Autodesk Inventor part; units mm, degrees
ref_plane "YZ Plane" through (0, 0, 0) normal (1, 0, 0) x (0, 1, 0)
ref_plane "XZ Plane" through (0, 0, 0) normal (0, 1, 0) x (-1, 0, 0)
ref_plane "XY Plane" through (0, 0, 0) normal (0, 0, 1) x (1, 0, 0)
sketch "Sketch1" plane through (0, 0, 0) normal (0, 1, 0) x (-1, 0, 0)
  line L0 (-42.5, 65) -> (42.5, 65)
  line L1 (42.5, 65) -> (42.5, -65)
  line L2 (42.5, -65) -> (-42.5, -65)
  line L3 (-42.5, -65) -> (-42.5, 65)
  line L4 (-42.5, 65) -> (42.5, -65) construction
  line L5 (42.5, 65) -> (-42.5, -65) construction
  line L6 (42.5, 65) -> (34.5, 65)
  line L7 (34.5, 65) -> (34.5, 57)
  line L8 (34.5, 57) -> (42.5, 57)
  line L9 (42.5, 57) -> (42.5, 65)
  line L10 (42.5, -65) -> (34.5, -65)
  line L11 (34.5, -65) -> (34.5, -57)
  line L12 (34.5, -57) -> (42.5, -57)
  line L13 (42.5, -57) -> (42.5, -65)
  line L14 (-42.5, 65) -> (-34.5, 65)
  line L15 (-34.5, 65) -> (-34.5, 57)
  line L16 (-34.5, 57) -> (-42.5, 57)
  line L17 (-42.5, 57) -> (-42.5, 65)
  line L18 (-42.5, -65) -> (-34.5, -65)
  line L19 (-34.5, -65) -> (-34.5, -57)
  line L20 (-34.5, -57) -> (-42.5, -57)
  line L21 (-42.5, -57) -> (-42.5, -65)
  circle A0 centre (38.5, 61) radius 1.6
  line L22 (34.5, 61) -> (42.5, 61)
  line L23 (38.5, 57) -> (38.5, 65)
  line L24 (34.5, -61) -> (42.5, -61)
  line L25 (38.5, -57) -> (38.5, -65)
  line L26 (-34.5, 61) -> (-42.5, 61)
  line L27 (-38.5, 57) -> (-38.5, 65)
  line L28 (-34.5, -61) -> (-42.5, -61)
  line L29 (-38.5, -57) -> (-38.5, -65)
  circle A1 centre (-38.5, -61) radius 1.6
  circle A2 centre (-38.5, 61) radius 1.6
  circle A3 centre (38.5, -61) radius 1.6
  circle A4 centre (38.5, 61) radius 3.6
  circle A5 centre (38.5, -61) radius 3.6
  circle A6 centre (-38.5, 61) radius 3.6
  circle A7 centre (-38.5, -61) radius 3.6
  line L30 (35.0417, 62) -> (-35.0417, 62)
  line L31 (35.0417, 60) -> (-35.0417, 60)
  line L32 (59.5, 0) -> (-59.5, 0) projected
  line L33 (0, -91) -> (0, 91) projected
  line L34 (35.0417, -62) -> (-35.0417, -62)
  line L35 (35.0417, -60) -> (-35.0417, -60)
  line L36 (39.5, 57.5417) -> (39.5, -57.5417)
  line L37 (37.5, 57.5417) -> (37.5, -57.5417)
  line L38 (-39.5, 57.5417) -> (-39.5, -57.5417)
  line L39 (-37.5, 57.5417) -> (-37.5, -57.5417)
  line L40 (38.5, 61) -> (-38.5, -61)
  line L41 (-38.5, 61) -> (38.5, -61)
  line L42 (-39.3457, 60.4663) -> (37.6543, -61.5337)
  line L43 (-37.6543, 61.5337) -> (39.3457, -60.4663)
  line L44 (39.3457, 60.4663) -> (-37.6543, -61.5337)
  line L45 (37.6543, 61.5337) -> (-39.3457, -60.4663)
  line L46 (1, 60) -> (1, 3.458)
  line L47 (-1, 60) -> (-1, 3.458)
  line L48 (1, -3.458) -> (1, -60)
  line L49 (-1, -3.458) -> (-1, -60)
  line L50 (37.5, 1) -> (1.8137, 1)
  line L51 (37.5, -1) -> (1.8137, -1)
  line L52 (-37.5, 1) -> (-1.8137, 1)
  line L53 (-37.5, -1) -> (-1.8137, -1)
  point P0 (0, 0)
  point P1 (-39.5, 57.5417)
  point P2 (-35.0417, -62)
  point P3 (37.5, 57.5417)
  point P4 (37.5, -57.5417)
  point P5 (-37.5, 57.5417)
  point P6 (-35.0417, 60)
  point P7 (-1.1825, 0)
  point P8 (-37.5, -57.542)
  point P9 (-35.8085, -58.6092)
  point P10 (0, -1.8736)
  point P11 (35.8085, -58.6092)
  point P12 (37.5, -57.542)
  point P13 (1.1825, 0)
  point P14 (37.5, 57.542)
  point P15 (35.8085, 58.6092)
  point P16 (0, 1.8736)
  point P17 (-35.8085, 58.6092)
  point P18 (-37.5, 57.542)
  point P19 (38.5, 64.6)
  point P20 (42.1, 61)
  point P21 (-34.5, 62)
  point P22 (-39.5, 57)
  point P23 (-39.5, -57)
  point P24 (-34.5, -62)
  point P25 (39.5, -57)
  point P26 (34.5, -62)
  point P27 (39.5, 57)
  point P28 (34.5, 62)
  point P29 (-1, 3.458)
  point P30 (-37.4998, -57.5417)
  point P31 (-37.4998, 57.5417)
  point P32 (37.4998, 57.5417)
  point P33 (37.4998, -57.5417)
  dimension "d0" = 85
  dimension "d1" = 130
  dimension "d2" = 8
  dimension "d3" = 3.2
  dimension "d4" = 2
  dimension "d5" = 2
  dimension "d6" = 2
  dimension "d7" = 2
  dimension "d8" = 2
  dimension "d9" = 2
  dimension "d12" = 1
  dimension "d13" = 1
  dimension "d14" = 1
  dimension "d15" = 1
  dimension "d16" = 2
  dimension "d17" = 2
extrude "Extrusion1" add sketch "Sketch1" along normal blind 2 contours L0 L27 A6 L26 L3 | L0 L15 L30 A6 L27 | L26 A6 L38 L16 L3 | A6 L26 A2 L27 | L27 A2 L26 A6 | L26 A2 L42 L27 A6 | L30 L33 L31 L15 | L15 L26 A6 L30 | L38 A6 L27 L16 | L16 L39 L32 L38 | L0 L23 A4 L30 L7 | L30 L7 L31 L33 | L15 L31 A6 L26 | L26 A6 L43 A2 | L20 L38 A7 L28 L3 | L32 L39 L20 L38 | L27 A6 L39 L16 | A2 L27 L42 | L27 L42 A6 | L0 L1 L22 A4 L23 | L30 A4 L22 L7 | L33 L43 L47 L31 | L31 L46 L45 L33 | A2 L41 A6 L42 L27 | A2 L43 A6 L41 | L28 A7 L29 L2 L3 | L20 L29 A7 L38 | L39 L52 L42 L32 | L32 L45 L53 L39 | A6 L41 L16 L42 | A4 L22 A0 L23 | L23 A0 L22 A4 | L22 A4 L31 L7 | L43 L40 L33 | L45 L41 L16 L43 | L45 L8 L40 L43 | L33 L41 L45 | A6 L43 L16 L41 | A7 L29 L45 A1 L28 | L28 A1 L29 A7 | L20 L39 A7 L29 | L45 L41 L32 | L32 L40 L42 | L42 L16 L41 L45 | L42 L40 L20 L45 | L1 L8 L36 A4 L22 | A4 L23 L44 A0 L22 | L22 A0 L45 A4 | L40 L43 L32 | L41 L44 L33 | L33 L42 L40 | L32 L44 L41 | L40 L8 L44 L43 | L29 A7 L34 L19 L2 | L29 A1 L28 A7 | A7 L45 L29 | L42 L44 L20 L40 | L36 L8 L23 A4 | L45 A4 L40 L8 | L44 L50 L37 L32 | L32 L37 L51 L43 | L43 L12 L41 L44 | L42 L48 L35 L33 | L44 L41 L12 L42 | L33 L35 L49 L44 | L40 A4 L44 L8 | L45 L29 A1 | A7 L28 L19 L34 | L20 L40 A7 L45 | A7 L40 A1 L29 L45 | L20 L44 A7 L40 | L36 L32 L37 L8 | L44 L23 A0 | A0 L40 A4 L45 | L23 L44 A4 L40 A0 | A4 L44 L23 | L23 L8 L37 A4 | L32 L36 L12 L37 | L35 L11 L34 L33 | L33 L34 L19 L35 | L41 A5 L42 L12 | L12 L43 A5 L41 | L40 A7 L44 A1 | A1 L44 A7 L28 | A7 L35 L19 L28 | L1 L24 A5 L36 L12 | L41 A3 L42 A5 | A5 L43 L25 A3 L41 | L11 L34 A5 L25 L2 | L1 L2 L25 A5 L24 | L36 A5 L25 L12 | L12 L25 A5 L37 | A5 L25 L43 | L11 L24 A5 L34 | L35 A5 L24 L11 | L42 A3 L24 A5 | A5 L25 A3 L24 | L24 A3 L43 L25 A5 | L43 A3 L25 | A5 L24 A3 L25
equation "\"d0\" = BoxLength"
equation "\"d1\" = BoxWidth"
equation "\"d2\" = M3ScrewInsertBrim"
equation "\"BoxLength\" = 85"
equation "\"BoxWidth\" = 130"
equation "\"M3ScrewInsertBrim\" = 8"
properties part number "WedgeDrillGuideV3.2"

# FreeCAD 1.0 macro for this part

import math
import FreeCAD as App
import Part
import Sketcher

V = App.Vector

doc = App.newDocument("Part")
body = doc.addObject("PartDesign::Body", "Body")

# Sketch on XZ plane
sketch1 = body.newObject("Sketcher::SketchObject", "Sketch")
sketch1.AttachmentSupport = (doc.getObject("XZ_Plane"), [""])
sketch1.MapMode = "FlatFace"
sketch1.addGeometry(Part.LineSegment(V(42.5, 65, 0), V(42.5, 57, 0)), False)
sketch1.addGeometry(Part.LineSegment(V(42.5, 57, 0), V(39.5, 57, 0)), False)
sketch1.addGeometry(Part.LineSegment(V(39.5, 57, 0), V(39.5, -57, 0)), False)
sketch1.addGeometry(Part.LineSegment(V(39.5, -57, 0), V(42.5, -57, 0)), False)
sketch1.addGeometry(Part.LineSegment(V(42.5, -57, 0), V(42.5, -65, 0)), False)
sketch1.addGeometry(Part.LineSegment(V(42.5, -65, 0), V(34.5, -65, 0)), False)
sketch1.addGeometry(Part.LineSegment(V(34.5, -65, 0), V(34.5, -62, 0)), False)
sketch1.addGeometry(Part.LineSegment(V(34.5, -62, 0), V(-34.5, -62, 0)), False)
sketch1.addGeometry(Part.LineSegment(V(-34.5, -62, 0), V(-34.5, -65, 0)), False)
sketch1.addGeometry(Part.LineSegment(V(-34.5, -65, 0), V(-42.5, -65, 0)), False)
sketch1.addGeometry(Part.LineSegment(V(-42.5, -65, 0), V(-42.5, -57, 0)), False)
sketch1.addGeometry(Part.LineSegment(V(-42.5, -57, 0), V(-39.5, -57, 0)), False)
sketch1.addGeometry(Part.LineSegment(V(-39.5, -57, 0), V(-39.5, 57, 0)), False)
sketch1.addGeometry(Part.LineSegment(V(-39.5, 57, 0), V(-42.5, 57, 0)), False)
sketch1.addGeometry(Part.LineSegment(V(-42.5, 57, 0), V(-42.5, 65, 0)), False)
sketch1.addGeometry(Part.LineSegment(V(-42.5, 65, 0), V(-34.5, 65, 0)), False)
sketch1.addGeometry(Part.LineSegment(V(-34.5, 65, 0), V(-34.5, 62, 0)), False)
sketch1.addGeometry(Part.LineSegment(V(-34.5, 62, 0), V(34.5, 62, 0)), False)
sketch1.addGeometry(Part.LineSegment(V(34.5, 62, 0), V(34.5, 65, 0)), False)
sketch1.addGeometry(Part.LineSegment(V(34.5, 65, 0), V(42.5, 65, 0)), False)
sketch1.addGeometry(Part.Circle(V(38.5, 61, 0), V(0, 0, 1), 1.6), False)
sketch1.addGeometry(Part.LineSegment(V(1, 60, 0), V(1, 3.5, 0)), False)
sketch1.addGeometry(Part.LineSegment(V(1, 3.5, 0), V(35.8, 58.6, 0)), False)
sketch1.addGeometry(Part.ArcOfCircle(Part.Circle(V(38.5, 61, 0), V(0, 0, 1), 3.6), math.radians(-164), math.radians(-138)), False)
sketch1.addGeometry(Part.LineSegment(V(35, 60, 0), V(1, 60, 0)), False)
sketch1.addGeometry(Part.LineSegment(V(37.5, 1, 0), V(37.5, 57.5, 0)), False)
sketch1.addGeometry(Part.LineSegment(V(37.5, 57.5, 0), V(1.8, 1, 0)), False)
sketch1.addGeometry(Part.LineSegment(V(1.8, 1, 0), V(37.5, 1, 0)), False)
sketch1.addGeometry(Part.LineSegment(V(-1, 60, 0), V(-35, 60, 0)), False)
sketch1.addGeometry(Part.ArcOfCircle(Part.Circle(V(-38.5, 61, 0), V(0, 0, 1), 3.6), math.radians(-42), math.radians(-16)), False)
sketch1.addGeometry(Part.LineSegment(V(-35.8, 58.6, 0), V(-1, 3.5, 0)), False)
sketch1.addGeometry(Part.LineSegment(V(-1, 3.5, 0), V(-1, 60, 0)), False)
sketch1.addGeometry(Part.LineSegment(V(37.5, -1, 0), V(1.8, -1, 0)), False)
sketch1.addGeometry(Part.LineSegment(V(1.8, -1, 0), V(37.5, -57.5, 0)), False)
sketch1.addGeometry(Part.LineSegment(V(37.5, -57.5, 0), V(37.5, -1, 0)), False)
sketch1.addGeometry(Part.Circle(V(-38.5, 61, 0), V(0, 0, 1), 1.6), False)
sketch1.addGeometry(Part.Circle(V(38.5, -61, 0), V(0, 0, 1), 1.6), False)
sketch1.addGeometry(Part.LineSegment(V(-1.8, 1, 0), V(-37.5, 57.5, 0)), False)
sketch1.addGeometry(Part.LineSegment(V(-37.5, 57.5, 0), V(-37.5, 1, 0)), False)
sketch1.addGeometry(Part.LineSegment(V(-37.5, 1, 0), V(-1.8, 1, 0)), False)
sketch1.addGeometry(Part.LineSegment(V(1, -3.5, 0), V(1, -60, 0)), False)
sketch1.addGeometry(Part.LineSegment(V(1, -60, 0), V(35, -60, 0)), False)
sketch1.addGeometry(Part.ArcOfCircle(Part.Circle(V(38.5, -61, 0), V(0, 0, 1), 3.6), math.radians(138), math.radians(164)), False)
sketch1.addGeometry(Part.LineSegment(V(35.8, -58.6, 0), V(1, -3.5, 0)), False)
sketch1.addGeometry(Part.LineSegment(V(-1.8, -1, 0), V(-37.5, -1, 0)), False)
sketch1.addGeometry(Part.LineSegment(V(-37.5, -1, 0), V(-37.5, -57.5, 0)), False)
sketch1.addGeometry(Part.LineSegment(V(-37.5, -57.5, 0), V(-1.8, -1, 0)), False)
sketch1.addGeometry(Part.LineSegment(V(-1, -60, 0), V(-1, -3.5, 0)), False)
sketch1.addGeometry(Part.LineSegment(V(-1, -3.5, 0), V(-35.8, -58.6, 0)), False)
sketch1.addGeometry(Part.ArcOfCircle(Part.Circle(V(-38.5, -61, 0), V(0, 0, 1), 3.6), math.radians(16), math.radians(42)), False)
sketch1.addGeometry(Part.LineSegment(V(-35, -60, 0), V(-1, -60, 0)), False)
sketch1.addGeometry(Part.Circle(V(-38.5, -61, 0), V(0, 0, 1), 1.6), False)
sketch1.addConstraint(Sketcher.Constraint("Coincident", 0, 2, 1, 1))
sketch1.addConstraint(Sketcher.Constraint("Coincident", 1, 2, 2, 1))
sketch1.addConstraint(Sketcher.Constraint("Coincident", 2, 2, 3, 1))
sketch1.addConstraint(Sketcher.Constraint("Coincident", 3, 2, 4, 1))
sketch1.addConstraint(Sketcher.Constraint("Coincident", 4, 2, 5, 1))
sketch1.addConstraint(Sketcher.Constraint("Coincident", 5, 2, 6, 1))
sketch1.addConstraint(Sketcher.Constraint("Coincident", 6, 2, 7, 1))
sketch1.addConstraint(Sketcher.Constraint("Coincident", 7, 2, 8, 1))
sketch1.addConstraint(Sketcher.Constraint("Coincident", 8, 2, 9, 1))
sketch1.addConstraint(Sketcher.Constraint("Coincident", 9, 2, 10, 1))
sketch1.addConstraint(Sketcher.Constraint("Coincident", 10, 2, 11, 1))
sketch1.addConstraint(Sketcher.Constraint("Coincident", 11, 2, 12, 1))
sketch1.addConstraint(Sketcher.Constraint("Coincident", 12, 2, 13, 1))
sketch1.addConstraint(Sketcher.Constraint("Coincident", 13, 2, 14, 1))
sketch1.addConstraint(Sketcher.Constraint("Coincident", 14, 2, 15, 1))
sketch1.addConstraint(Sketcher.Constraint("Coincident", 15, 2, 16, 1))
sketch1.addConstraint(Sketcher.Constraint("Coincident", 16, 2, 17, 1))
sketch1.addConstraint(Sketcher.Constraint("Coincident", 17, 2, 18, 1))
sketch1.addConstraint(Sketcher.Constraint("Coincident", 18, 2, 19, 1))
sketch1.addConstraint(Sketcher.Constraint("Coincident", 19, 2, 0, 1))
sketch1.addConstraint(Sketcher.Constraint("Coincident", 21, 2, 22, 1))
sketch1.addConstraint(Sketcher.Constraint("Coincident", 22, 2, 23, 2))
sketch1.addConstraint(Sketcher.Constraint("Coincident", 23, 1, 24, 1))
sketch1.addConstraint(Sketcher.Constraint("Coincident", 24, 2, 21, 1))
sketch1.addConstraint(Sketcher.Constraint("Coincident", 25, 2, 26, 1))
sketch1.addConstraint(Sketcher.Constraint("Coincident", 26, 2, 27, 1))
sketch1.addConstraint(Sketcher.Constraint("Coincident", 27, 2, 25, 1))
sketch1.addConstraint(Sketcher.Constraint("Coincident", 28, 2, 29, 2))
sketch1.addConstraint(Sketcher.Constraint("Coincident", 29, 1, 30, 1))
sketch1.addConstraint(Sketcher.Constraint("Coincident", 30, 2, 31, 1))
sketch1.addConstraint(Sketcher.Constraint("Coincident", 31, 2, 28, 1))
sketch1.addConstraint(Sketcher.Constraint("Coincident", 32, 2, 33, 1))
sketch1.addConstraint(Sketcher.Constraint("Coincident", 33, 2, 34, 1))
sketch1.addConstraint(Sketcher.Constraint("Coincident", 34, 2, 32, 1))
sketch1.addConstraint(Sketcher.Constraint("Coincident", 37, 2, 38, 1))
sketch1.addConstraint(Sketcher.Constraint("Coincident", 38, 2, 39, 1))
sketch1.addConstraint(Sketcher.Constraint("Coincident", 39, 2, 37, 1))
sketch1.addConstraint(Sketcher.Constraint("Coincident", 40, 2, 41, 1))
sketch1.addConstraint(Sketcher.Constraint("Coincident", 41, 2, 42, 2))
sketch1.addConstraint(Sketcher.Constraint("Coincident", 42, 1, 43, 1))
sketch1.addConstraint(Sketcher.Constraint("Coincident", 43, 2, 40, 1))
sketch1.addConstraint(Sketcher.Constraint("Coincident", 44, 2, 45, 1))
sketch1.addConstraint(Sketcher.Constraint("Coincident", 45, 2, 46, 1))
sketch1.addConstraint(Sketcher.Constraint("Coincident", 46, 2, 44, 1))
sketch1.addConstraint(Sketcher.Constraint("Coincident", 47, 2, 48, 1))
sketch1.addConstraint(Sketcher.Constraint("Coincident", 48, 2, 49, 2))
sketch1.addConstraint(Sketcher.Constraint("Coincident", 49, 1, 50, 1))
sketch1.addConstraint(Sketcher.Constraint("Coincident", 50, 2, 47, 1))
sketch1.addConstraint(Sketcher.Constraint("Vertical", 0))
sketch1.addConstraint(Sketcher.Constraint("Horizontal", 1))
sketch1.addConstraint(Sketcher.Constraint("Vertical", 2))
sketch1.addConstraint(Sketcher.Constraint("Horizontal", 3))
sketch1.addConstraint(Sketcher.Constraint("Vertical", 4))
sketch1.addConstraint(Sketcher.Constraint("Horizontal", 5))
sketch1.addConstraint(Sketcher.Constraint("Vertical", 6))
sketch1.addConstraint(Sketcher.Constraint("Horizontal", 7))
sketch1.addConstraint(Sketcher.Constraint("Vertical", 8))
sketch1.addConstraint(Sketcher.Constraint("Horizontal", 9))
sketch1.addConstraint(Sketcher.Constraint("Vertical", 10))
sketch1.addConstraint(Sketcher.Constraint("Horizontal", 11))
sketch1.addConstraint(Sketcher.Constraint("Vertical", 12))
sketch1.addConstraint(Sketcher.Constraint("Horizontal", 13))
sketch1.addConstraint(Sketcher.Constraint("Vertical", 14))
sketch1.addConstraint(Sketcher.Constraint("Horizontal", 15))
sketch1.addConstraint(Sketcher.Constraint("Vertical", 16))
sketch1.addConstraint(Sketcher.Constraint("Horizontal", 17))
sketch1.addConstraint(Sketcher.Constraint("Vertical", 18))
sketch1.addConstraint(Sketcher.Constraint("Horizontal", 19))
sketch1.addConstraint(Sketcher.Constraint("Vertical", 21))
sketch1.addConstraint(Sketcher.Constraint("Horizontal", 24))
sketch1.addConstraint(Sketcher.Constraint("Vertical", 25))
sketch1.addConstraint(Sketcher.Constraint("Horizontal", 27))
sketch1.addConstraint(Sketcher.Constraint("Horizontal", 28))
sketch1.addConstraint(Sketcher.Constraint("Vertical", 31))
sketch1.addConstraint(Sketcher.Constraint("Horizontal", 32))
sketch1.addConstraint(Sketcher.Constraint("Vertical", 34))
sketch1.addConstraint(Sketcher.Constraint("Vertical", 38))
sketch1.addConstraint(Sketcher.Constraint("Horizontal", 39))
sketch1.addConstraint(Sketcher.Constraint("Vertical", 40))
sketch1.addConstraint(Sketcher.Constraint("Horizontal", 41))
sketch1.addConstraint(Sketcher.Constraint("Horizontal", 44))
sketch1.addConstraint(Sketcher.Constraint("Vertical", 45))
sketch1.addConstraint(Sketcher.Constraint("Vertical", 47))
sketch1.addConstraint(Sketcher.Constraint("Horizontal", 50))
sketch1.addConstraint(Sketcher.Constraint("Coincident", 23, 3, 20, 3))
sketch1.addConstraint(Sketcher.Constraint("Coincident", 35, 3, 29, 3))
sketch1.addConstraint(Sketcher.Constraint("Coincident", 42, 3, 36, 3))
sketch1.addConstraint(Sketcher.Constraint("Coincident", 51, 3, 49, 3))
sketch1.addConstraint(Sketcher.Constraint("Equal", 23, 29))
sketch1.addConstraint(Sketcher.Constraint("Equal", 20, 35))
sketch1.addConstraint(Sketcher.Constraint("Equal", 35, 36))
sketch1.addConstraint(Sketcher.Constraint("Equal", 29, 42))
sketch1.addConstraint(Sketcher.Constraint("Equal", 42, 49))
sketch1.addConstraint(Sketcher.Constraint("Equal", 36, 51))
sketch1.addConstraint(Sketcher.Constraint("Symmetric", 29, 3, 36, 3, -1, 1))
sketch1.addConstraint(Sketcher.Constraint("Symmetric", 20, 3, 49, 3, -1, 1))
sketch1.addConstraint(Sketcher.Constraint("Symmetric", 0, 2, 10, 2, -1, 1))
sketch1.addConstraint(Sketcher.Constraint("Symmetric", 2, 2, 12, 2, -1, 1))
sketch1.addConstraint(Sketcher.Constraint("Symmetric", 4, 2, 14, 2, -1, 1))
sketch1.addConstraint(Sketcher.Constraint("Symmetric", 6, 2, 16, 2, -1, 1))
sketch1.addConstraint(Sketcher.Constraint("Symmetric", 8, 2, 18, 2, -1, 1))
sketch1.addConstraint(Sketcher.Constraint("Symmetric", 33, 2, 37, 2, -1, 1))
sketch1.addConstraint(Sketcher.Constraint("Symmetric", 32, 2, 39, 2, -1, 1))
sketch1.addConstraint(Sketcher.Constraint("Symmetric", 31, 2, 40, 2, -1, 1))
sketch1.addConstraint(Sketcher.Constraint("Symmetric", 27, 2, 44, 2, -1, 1))
sketch1.addConstraint(Sketcher.Constraint("Symmetric", 21, 2, 47, 2, -1, 1))
sketch1.addConstraint(Sketcher.Constraint("Symmetric", 20, 3, 29, 3, -2))
sketch1.addConstraint(Sketcher.Constraint("Symmetric", 5, 2, 8, 2, -2))
sketch1.addConstraint(Sketcher.Constraint("Symmetric", 3, 2, 10, 2, -2))
sketch1.addConstraint(Sketcher.Constraint("Symmetric", 21, 2, 30, 2, -2))
sketch1.addConstraint(Sketcher.Constraint("Symmetric", 25, 2, 37, 2, -2))
sketch1.addConstraint(Sketcher.Constraint("Symmetric", 26, 2, 39, 2, -2))
sketch1.addConstraint(Sketcher.Constraint("Parallel", 22, 26))
sketch1.addConstraint(Sketcher.Constraint("Parallel", 30, 33))
sketch1.addConstraint(Sketcher.Constraint("Parallel", 37, 43))
sketch1.addConstraint(Sketcher.Constraint("Parallel", 26, 46))
sketch1.addConstraint(Sketcher.Constraint("Parallel", 46, 48))
sketch1.addConstraint(Sketcher.Constraint("Horizontal", 24, 2, 28, 2))
sketch1.addConstraint(Sketcher.Constraint("Horizontal", 33, 2, 45, 2))
sketch1.addConstraint(Sketcher.Constraint("Horizontal", 43, 2, 47, 2))
sketch1.addConstraint(Sketcher.Constraint("Horizontal", 41, 2, 49, 1))
sketch1.addConstraint(Sketcher.Constraint("Equal", 19, 0))
sketch1.addConstraint(Sketcher.Constraint("Equal", 13, 6))
sketch1.addConstraint(Sketcher.Constraint("Diameter", 20, 3.2))
sketch1.addConstraint(Sketcher.Constraint("DistanceX", 5, 2, 5, 1, 8.0))
sketch1.addConstraint(Sketcher.Constraint("DistanceX", -1, 1, 21, 2, 1.0))
sketch1.addConstraint(Sketcher.Constraint("DistanceY", -1, 1, 26, 2, 1.0))
sketch1.addConstraint(Sketcher.Constraint("DistanceX", 20, 3, 1, 2, 1.0))
sketch1.addConstraint(Sketcher.Constraint("DistanceY", 6, 2, 36, 3, 1.0))
sketch1.addConstraint(Sketcher.Constraint("DistanceY", 23, 1, 17, 2, 2.0))
sketch1.addConstraint(Sketcher.Constraint("DistanceX", 25, 2, 1, 2, 2.0))
sketch1.addConstraint(Sketcher.Constraint("Radius", 23, 3.6))
sketch1.addConstraint(Sketcher.Constraint("DistanceX", 1, 2, 1, 1, 3.0))
sketch1.addConstraint(Sketcher.Constraint("DistanceX", 7, 2, 7, 1, 69.0))
sketch1.addConstraint(Sketcher.Constraint("DistanceY", 2, 2, 2, 1, 114.0))
sketch1.addConstraint(Sketcher.Constraint("DistanceY", 21, 2, 21, 1, 56.542))
sketch1.addConstraint(Sketcher.Constraint("DistanceX", 27, 1, 27, 2, 35.6863))
sketch1.addConstraint(Sketcher.Constraint("DistanceY", 25, 1, 25, 2, 56.5417))
pad1 = body.newObject("PartDesign::Pad", "Pad")
pad1.Profile = sketch1
pad1.Length = 2
pad1.Reversed = True

doc.recompute()
